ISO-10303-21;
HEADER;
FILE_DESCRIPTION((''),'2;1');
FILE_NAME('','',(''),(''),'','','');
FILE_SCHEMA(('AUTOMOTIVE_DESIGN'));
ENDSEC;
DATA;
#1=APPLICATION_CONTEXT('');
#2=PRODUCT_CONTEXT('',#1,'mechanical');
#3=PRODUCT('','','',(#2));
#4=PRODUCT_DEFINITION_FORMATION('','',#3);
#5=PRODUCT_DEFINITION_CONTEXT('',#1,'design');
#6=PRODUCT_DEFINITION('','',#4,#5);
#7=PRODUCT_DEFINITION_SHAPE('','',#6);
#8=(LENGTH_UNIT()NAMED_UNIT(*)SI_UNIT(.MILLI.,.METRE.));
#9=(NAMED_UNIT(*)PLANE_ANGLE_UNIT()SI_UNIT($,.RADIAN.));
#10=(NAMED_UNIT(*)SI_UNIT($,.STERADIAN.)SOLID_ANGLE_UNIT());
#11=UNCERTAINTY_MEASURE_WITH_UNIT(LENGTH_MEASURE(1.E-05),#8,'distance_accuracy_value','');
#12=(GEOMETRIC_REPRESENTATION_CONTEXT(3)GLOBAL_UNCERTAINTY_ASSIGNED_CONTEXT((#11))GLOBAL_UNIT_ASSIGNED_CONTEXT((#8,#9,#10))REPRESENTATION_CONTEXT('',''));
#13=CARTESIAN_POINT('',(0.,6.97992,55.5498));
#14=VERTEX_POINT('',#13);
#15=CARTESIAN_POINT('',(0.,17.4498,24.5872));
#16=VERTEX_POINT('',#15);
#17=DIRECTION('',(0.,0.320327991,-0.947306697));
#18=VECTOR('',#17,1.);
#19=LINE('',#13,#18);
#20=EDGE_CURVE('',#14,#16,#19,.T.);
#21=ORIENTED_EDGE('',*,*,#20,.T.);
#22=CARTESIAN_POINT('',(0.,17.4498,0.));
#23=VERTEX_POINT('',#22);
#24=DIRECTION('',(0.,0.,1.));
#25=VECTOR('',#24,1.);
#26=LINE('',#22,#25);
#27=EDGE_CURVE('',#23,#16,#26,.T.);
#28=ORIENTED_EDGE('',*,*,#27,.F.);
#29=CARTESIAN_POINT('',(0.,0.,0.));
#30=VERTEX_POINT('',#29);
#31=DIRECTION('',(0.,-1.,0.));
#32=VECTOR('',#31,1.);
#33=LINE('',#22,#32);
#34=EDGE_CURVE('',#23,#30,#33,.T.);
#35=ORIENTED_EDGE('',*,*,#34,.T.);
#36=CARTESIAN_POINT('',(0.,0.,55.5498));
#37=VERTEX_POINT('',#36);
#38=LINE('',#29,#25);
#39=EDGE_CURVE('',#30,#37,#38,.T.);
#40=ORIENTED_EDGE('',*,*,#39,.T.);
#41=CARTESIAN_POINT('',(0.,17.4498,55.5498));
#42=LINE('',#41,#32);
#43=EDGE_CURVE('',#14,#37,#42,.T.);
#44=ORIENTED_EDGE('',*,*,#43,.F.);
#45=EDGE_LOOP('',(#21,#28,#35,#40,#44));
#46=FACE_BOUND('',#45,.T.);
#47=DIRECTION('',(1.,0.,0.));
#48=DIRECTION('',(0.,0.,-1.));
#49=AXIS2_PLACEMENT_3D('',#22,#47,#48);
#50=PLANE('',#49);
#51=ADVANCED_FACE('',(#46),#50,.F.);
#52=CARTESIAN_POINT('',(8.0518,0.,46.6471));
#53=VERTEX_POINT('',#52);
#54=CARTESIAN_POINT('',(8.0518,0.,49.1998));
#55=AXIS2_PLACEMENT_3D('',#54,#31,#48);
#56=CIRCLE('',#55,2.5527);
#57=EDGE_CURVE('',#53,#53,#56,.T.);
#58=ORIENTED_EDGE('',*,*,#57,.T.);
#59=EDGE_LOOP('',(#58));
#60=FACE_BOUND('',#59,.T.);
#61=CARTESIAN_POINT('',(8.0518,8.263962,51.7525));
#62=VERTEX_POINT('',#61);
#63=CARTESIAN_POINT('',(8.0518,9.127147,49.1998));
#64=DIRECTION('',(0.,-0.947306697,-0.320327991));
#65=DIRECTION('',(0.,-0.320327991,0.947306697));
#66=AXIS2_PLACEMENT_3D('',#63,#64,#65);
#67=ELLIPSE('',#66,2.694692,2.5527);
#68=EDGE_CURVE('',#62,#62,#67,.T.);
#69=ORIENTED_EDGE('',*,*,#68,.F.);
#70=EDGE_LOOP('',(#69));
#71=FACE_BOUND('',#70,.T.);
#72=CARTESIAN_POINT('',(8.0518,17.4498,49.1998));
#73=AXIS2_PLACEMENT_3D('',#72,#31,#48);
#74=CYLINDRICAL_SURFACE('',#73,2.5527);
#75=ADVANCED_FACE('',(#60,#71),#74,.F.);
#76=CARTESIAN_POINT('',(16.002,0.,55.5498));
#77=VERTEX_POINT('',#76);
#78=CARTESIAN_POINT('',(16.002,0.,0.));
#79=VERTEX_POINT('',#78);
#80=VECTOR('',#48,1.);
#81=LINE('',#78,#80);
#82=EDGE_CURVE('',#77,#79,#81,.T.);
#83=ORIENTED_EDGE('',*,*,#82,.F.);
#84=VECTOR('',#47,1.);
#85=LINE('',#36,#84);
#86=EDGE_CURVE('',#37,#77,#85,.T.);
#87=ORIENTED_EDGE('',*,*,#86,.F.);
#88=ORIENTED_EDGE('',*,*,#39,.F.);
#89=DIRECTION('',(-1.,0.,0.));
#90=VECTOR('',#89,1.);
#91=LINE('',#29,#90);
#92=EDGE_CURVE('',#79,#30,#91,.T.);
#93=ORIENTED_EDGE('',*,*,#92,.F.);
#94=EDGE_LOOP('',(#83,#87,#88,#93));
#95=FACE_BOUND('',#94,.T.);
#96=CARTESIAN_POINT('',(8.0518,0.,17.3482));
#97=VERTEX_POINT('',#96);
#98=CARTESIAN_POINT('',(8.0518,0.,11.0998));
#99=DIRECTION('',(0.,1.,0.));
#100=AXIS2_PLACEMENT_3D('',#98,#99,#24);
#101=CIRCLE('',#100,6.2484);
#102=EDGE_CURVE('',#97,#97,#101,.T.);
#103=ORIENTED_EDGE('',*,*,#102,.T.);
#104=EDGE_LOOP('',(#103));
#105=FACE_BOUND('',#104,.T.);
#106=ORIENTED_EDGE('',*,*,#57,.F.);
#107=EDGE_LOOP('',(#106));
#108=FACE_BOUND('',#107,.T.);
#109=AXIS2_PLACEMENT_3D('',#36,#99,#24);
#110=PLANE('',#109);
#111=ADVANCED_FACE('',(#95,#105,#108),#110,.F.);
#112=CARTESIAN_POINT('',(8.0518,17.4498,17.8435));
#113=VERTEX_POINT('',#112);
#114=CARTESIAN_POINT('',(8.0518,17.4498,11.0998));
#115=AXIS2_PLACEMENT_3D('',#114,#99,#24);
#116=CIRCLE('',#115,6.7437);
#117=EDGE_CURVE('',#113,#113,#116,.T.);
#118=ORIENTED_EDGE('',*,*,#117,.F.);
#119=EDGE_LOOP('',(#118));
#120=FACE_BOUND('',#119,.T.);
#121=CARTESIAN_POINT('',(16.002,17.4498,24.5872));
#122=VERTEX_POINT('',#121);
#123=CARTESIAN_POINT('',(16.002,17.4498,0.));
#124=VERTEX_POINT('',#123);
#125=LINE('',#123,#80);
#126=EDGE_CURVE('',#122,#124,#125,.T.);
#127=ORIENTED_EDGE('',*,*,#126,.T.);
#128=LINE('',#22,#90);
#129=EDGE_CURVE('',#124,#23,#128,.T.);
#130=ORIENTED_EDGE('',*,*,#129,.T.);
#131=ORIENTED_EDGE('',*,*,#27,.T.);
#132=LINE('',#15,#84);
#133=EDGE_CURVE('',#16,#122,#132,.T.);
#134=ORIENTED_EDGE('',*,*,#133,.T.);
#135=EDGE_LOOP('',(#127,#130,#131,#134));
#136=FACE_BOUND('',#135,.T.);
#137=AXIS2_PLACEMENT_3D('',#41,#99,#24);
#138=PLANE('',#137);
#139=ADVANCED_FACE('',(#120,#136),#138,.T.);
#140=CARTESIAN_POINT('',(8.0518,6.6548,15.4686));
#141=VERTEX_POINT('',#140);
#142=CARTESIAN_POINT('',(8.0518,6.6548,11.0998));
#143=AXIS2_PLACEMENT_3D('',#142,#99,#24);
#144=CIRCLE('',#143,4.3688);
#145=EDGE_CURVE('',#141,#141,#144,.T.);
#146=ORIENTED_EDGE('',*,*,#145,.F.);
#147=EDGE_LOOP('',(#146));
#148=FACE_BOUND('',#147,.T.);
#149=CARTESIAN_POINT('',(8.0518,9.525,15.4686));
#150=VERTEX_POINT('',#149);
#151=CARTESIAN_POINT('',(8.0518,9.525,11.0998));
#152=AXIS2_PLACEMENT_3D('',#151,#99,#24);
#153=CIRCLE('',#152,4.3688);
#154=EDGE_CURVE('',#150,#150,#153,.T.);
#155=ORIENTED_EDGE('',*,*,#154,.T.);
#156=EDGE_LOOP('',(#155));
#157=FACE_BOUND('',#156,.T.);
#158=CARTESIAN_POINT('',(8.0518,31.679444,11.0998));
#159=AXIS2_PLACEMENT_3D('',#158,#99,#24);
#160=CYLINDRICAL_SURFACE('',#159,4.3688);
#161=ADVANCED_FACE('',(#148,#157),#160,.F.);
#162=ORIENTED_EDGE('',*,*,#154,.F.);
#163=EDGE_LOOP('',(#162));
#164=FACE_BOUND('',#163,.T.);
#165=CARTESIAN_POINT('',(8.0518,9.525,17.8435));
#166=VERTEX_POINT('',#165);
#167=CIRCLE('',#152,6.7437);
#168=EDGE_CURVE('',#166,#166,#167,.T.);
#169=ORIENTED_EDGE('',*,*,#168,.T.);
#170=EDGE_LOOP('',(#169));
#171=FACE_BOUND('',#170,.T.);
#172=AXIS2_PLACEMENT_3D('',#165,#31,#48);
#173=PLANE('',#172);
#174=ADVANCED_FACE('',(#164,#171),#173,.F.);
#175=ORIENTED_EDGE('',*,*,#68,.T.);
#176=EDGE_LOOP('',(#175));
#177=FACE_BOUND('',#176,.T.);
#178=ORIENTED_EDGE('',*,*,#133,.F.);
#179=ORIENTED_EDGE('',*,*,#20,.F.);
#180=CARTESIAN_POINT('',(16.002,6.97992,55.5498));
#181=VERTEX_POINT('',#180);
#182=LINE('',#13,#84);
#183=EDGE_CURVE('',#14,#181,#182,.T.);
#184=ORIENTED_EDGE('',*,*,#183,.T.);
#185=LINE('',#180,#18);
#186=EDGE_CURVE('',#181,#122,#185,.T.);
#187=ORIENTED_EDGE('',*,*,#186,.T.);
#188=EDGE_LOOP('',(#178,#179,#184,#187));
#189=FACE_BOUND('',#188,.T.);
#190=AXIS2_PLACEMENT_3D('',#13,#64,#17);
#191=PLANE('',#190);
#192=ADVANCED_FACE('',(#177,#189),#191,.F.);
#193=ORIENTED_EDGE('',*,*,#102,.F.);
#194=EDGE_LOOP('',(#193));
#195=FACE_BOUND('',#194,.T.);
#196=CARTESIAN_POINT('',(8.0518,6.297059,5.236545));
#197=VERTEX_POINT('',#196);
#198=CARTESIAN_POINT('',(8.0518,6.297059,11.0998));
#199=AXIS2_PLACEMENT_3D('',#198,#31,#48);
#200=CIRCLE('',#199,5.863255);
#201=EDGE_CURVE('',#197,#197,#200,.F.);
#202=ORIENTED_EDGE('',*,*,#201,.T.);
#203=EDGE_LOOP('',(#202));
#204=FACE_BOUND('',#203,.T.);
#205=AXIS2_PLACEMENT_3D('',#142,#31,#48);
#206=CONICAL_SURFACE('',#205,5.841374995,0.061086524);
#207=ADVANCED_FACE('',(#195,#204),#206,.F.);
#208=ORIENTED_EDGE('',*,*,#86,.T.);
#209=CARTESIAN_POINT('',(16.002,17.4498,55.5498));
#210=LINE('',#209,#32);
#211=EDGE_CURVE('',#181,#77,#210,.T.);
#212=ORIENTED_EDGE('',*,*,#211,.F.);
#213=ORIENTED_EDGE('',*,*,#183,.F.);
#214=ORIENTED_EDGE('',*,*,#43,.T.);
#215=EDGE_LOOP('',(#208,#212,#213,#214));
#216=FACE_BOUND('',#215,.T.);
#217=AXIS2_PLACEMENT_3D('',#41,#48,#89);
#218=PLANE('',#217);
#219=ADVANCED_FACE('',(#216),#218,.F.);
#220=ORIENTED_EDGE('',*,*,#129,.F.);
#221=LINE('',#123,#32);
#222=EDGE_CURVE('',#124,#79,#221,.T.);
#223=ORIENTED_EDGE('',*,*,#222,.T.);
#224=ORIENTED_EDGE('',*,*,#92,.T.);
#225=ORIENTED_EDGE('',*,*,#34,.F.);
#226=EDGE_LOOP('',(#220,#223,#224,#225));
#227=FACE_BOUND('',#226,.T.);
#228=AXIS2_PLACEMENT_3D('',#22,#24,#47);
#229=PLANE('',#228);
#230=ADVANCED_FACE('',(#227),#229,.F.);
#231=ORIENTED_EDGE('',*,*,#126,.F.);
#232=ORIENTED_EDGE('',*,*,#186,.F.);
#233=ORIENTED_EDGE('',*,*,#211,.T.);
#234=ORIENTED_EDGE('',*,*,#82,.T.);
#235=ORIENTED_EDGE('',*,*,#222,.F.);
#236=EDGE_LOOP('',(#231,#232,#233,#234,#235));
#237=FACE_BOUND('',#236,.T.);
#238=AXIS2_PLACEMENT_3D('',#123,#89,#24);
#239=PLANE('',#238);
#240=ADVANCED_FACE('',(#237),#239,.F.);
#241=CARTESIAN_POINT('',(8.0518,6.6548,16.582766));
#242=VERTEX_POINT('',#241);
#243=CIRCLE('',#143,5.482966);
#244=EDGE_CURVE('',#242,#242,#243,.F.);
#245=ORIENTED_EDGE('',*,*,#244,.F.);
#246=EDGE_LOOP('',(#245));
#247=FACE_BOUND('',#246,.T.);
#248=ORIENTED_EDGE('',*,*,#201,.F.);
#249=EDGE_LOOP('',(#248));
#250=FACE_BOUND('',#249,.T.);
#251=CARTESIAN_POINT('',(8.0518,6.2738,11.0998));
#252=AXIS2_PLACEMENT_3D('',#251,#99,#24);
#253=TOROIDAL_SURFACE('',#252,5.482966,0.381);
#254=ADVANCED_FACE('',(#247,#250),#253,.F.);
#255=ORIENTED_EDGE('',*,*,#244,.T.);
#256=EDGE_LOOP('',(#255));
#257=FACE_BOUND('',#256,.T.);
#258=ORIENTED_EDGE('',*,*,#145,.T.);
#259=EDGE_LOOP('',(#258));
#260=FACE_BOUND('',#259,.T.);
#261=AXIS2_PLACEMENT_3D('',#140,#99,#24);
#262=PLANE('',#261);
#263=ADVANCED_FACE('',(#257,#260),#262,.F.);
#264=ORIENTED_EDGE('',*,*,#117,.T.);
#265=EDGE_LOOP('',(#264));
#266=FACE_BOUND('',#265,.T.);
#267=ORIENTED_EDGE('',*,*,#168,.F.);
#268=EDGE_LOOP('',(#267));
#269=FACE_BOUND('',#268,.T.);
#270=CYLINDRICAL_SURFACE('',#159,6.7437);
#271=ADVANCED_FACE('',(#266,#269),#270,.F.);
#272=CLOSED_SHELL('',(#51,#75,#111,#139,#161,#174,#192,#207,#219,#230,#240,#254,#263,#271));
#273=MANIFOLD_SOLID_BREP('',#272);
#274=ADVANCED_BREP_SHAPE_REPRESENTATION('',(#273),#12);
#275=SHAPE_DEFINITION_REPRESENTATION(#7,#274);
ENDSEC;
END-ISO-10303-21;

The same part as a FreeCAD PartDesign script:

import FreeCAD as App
import Part
import Sketcher
Q = App.Units.Quantity


def edges_at(feature, points):
    """Names of the edges that pass closest to the given points."""
    edges = feature.Shape.Edges
    near = lambda p: min(range(len(edges)), key=lambda i: edges[i].distToShape(Part.Vertex(*p))[0])
    return sorted({f"Edge{near(p) + 1}" for p in points})

doc = App.newDocument("Part")
body = doc.addObject("PartDesign::Body", "Body")

# Sketch on XZ plane
sketch1 = body.newObject("Sketcher::SketchObject", "Sketch")
sketch1.AttachmentSupport = (doc.getObject("XZ_Plane"), [""])
sketch1.MapMode = "FlatFace"
sketch1.addGeometry(Part.LineSegment(App.Vector(0, 0, 0), App.Vector(0, 56, 0)), False)
sketch1.addGeometry(Part.LineSegment(App.Vector(0, 56, 0), App.Vector(16, 56, 0)), False)
sketch1.addGeometry(Part.LineSegment(App.Vector(16, 56, 0), App.Vector(16, 0, 0)), False)
sketch1.addGeometry(Part.LineSegment(App.Vector(16, 0, 0), App.Vector(0, 0, 0)), False)
sketch1.addConstraint(Sketcher.Constraint("Coincident", 0, 2, 1, 1))
sketch1.addConstraint(Sketcher.Constraint("Coincident", 1, 2, 2, 1))
sketch1.addConstraint(Sketcher.Constraint("Coincident", 2, 2, 3, 1))
sketch1.addConstraint(Sketcher.Constraint("Coincident", 3, 2, 0, 1))
sketch1.addConstraint(Sketcher.Constraint("Vertical", 0))
sketch1.addConstraint(Sketcher.Constraint("Horizontal", 1))
sketch1.addConstraint(Sketcher.Constraint("Vertical", 2))
sketch1.addConstraint(Sketcher.Constraint("Horizontal", 3))
sketch1.addConstraint(Sketcher.Constraint("Coincident", 3, 2, -1, 1))
sketch1.addConstraint(Sketcher.Constraint("DistanceX", 1, 1, 1, 2, Q("0.63 in")))
sketch1.addConstraint(Sketcher.Constraint("DistanceY", 0, 1, 0, 2, Q("2.187 in")))
pad1 = body.newObject("PartDesign::Pad", "Pad")
pad1.Profile = sketch1
pad1.Length = Q("0.687 in")
pad1.Reversed = True

# Sketch on YZ plane
sketch2 = body.newObject("Sketcher::SketchObject", "Sketch001")
sketch2.AttachmentSupport = (doc.getObject("YZ_Plane"), [""])
sketch2.MapMode = "FlatFace"
sketch2.AttachmentOffset = App.Placement(App.Vector(0, 0, 0.317 * 25.4), App.Rotation())
sketch2.addGeometry(Part.LineSegment(App.Vector(17.4, 17.8, 0), App.Vector(9.5, 17.8, 0)), False)
sketch2.addGeometry(Part.LineSegment(App.Vector(9.5, 17.8, 0), App.Vector(9.5, 15.5, 0)), False)
sketch2.addGeometry(Part.LineSegment(App.Vector(9.5, 15.5, 0), App.Vector(6.7, 15.5, 0)), False)
sketch2.addGeometry(Part.LineSegment(App.Vector(6.7, 15.5, 0), App.Vector(6.7, 16.9, 0)), False)
sketch2.addGeometry(Part.LineSegment(App.Vector(6.7, 16.9, 0), App.Vector(0, 17.3, 0)), False)
sketch2.addGeometry(Part.LineSegment(App.Vector(0, 17.3, 0), App.Vector(0, 11.1, 0)), False)
sketch2.addGeometry(Part.LineSegment(App.Vector(0, 11.1, 0), App.Vector(17.4, 11.1, 0)), False)
sketch2.addGeometry(Part.LineSegment(App.Vector(17.4, 11.1, 0), App.Vector(17.4, 17.8, 0)), False)
sketch2.addGeometry(Part.LineSegment(App.Vector(17.4, 11.1, 0), App.Vector(0, 11.1, 0)), True)  # axis
sketch2.addConstraint(Sketcher.Constraint("Coincident", 0, 2, 1, 1))
sketch2.addConstraint(Sketcher.Constraint("Coincident", 1, 2, 2, 1))
sketch2.addConstraint(Sketcher.Constraint("Coincident", 2, 2, 3, 1))
sketch2.addConstraint(Sketcher.Constraint("Coincident", 3, 2, 4, 1))
sketch2.addConstraint(Sketcher.Constraint("Coincident", 4, 2, 5, 1))
sketch2.addConstraint(Sketcher.Constraint("Coincident", 5, 2, 6, 1))
sketch2.addConstraint(Sketcher.Constraint("Coincident", 6, 2, 7, 1))
sketch2.addConstraint(Sketcher.Constraint("Coincident", 7, 2, 0, 1))
sketch2.addConstraint(Sketcher.Constraint("Horizontal", 0))
sketch2.addConstraint(Sketcher.Constraint("Vertical", 1))
sketch2.addConstraint(Sketcher.Constraint("Horizontal", 2))
sketch2.addConstraint(Sketcher.Constraint("Vertical", 3))
sketch2.addConstraint(Sketcher.Constraint("Vertical", 5))
sketch2.addConstraint(Sketcher.Constraint("Horizontal", 6))
sketch2.addConstraint(Sketcher.Constraint("Vertical", 7))
sketch2.addConstraint(Sketcher.Constraint("Horizontal", 8))
sketch2.addConstraint(Sketcher.Constraint("Coincident", 8, 1, 6, 2))
sketch2.addConstraint(Sketcher.Constraint("PointOnObject", 4, 2, -2))
sketch2.addConstraint(Sketcher.Constraint("PointOnObject", 8, 2, -2))
sketch2.addConstraint(Sketcher.Constraint("Angle", 4, Q("176.5 deg")))
sketch2.addConstraint(Sketcher.Constraint("DistanceX", 0, 2, 0, 1, Q("0.312 in")))
sketch2.addConstraint(Sketcher.Constraint("DistanceX", 2, 2, 2, 1, Q("0.113 in")))
sketch2.addConstraint(Sketcher.Constraint("DistanceX", 6, 1, 6, 2, Q("0.687 in")))
sketch2.addConstraint(Sketcher.Constraint("DistanceY", 5, 2, 5, 1, Q("0.246 in")))
sketch2.addConstraint(Sketcher.Constraint("DistanceY", 1, 2, 1, 1, Q("0.0935 in")))
sketch2.addConstraint(Sketcher.Constraint("DistanceY", 7, 1, 7, 2, Q("0.2655 in")))
sketch2.addConstraint(Sketcher.Constraint("DistanceY", -1, 1, 1, 2, Q("0.609 in")))
groove = body.newObject("PartDesign::Groove", "Groove")
groove.Profile = sketch2
groove.ReferenceAxis = (sketch2, ["Axis0"])
groove.Angle = 360
doc.recompute()

fillet = body.newObject("PartDesign::Fillet", "Fillet")
fillet.Base = (groove, edges_at(groove, [(8.052, 6.655, 5.258)]))
fillet.Radius = Q("0.015 in")

# Sketch on YZ plane
sketch3 = body.newObject("Sketcher::SketchObject", "Sketch002")
sketch3.AttachmentSupport = (doc.getObject("YZ_Plane"), [""])
sketch3.MapMode = "FlatFace"
sketch3.AttachmentOffset = App.Placement(App.Vector(0, 0, 0.63 * 25.4), App.Rotation())
sketch3.addGeometry(Part.LineSegment(App.Vector(17, 56, 0), App.Vector(7, 56, 0)), False)
sketch3.addGeometry(Part.LineSegment(App.Vector(7, 56, 0), App.Vector(17, 25, 0)), False)
sketch3.addGeometry(Part.LineSegment(App.Vector(17, 25, 0), App.Vector(17, 56, 0)), False)
sketch3.addConstraint(Sketcher.Constraint("Coincident", 0, 2, 1, 1))
sketch3.addConstraint(Sketcher.Constraint("Coincident", 1, 2, 2, 1))
sketch3.addConstraint(Sketcher.Constraint("Coincident", 2, 2, 0, 1))
sketch3.addConstraint(Sketcher.Constraint("Horizontal", 0))
sketch3.addConstraint(Sketcher.Constraint("Vertical", 2))
sketch3.addConstraint(Sketcher.Constraint("DistanceY", 2, 1, 2, 2, Q("1.219 in")))
sketch3.addConstraint(Sketcher.Constraint("DistanceX", 0, 2, 0, 1, Q("0.4122 in")))
sketch3.addConstraint(Sketcher.Constraint("DistanceY", -1, 1, 0, 2, Q("2.187 in")))
sketch3.addConstraint(Sketcher.Constraint("DistanceX", -1, 1, 1, 2, Q("0.687 in")))
pocket1 = body.newObject("PartDesign::Pocket", "Pocket")
pocket1.Profile = sketch3
pocket1.Type = "ThroughAll"

# Sketch on XZ plane
sketch4 = body.newObject("Sketcher::SketchObject", "Sketch003")
sketch4.AttachmentSupport = (doc.getObject("XZ_Plane"), [""])
sketch4.MapMode = "FlatFace"
sketch4.addGeometry(Part.Circle(App.Vector(8.1, 49.2, 0), App.Vector(0, 0, 1), 2.6), False)
sketch4.addConstraint(Sketcher.Constraint("Diameter", 0, Q("0.201 in")))
sketch4.addConstraint(Sketcher.Constraint("DistanceX", -1, 1, 0, 3, Q("0.317 in")))
sketch4.addConstraint(Sketcher.Constraint("DistanceY", -1, 1, 0, 3, Q("1.937 in")))
pocket2 = body.newObject("PartDesign::Pocket", "Pocket001")
pocket2.Profile = sketch4
pocket2.Type = "ThroughAll"

doc.recompute()
